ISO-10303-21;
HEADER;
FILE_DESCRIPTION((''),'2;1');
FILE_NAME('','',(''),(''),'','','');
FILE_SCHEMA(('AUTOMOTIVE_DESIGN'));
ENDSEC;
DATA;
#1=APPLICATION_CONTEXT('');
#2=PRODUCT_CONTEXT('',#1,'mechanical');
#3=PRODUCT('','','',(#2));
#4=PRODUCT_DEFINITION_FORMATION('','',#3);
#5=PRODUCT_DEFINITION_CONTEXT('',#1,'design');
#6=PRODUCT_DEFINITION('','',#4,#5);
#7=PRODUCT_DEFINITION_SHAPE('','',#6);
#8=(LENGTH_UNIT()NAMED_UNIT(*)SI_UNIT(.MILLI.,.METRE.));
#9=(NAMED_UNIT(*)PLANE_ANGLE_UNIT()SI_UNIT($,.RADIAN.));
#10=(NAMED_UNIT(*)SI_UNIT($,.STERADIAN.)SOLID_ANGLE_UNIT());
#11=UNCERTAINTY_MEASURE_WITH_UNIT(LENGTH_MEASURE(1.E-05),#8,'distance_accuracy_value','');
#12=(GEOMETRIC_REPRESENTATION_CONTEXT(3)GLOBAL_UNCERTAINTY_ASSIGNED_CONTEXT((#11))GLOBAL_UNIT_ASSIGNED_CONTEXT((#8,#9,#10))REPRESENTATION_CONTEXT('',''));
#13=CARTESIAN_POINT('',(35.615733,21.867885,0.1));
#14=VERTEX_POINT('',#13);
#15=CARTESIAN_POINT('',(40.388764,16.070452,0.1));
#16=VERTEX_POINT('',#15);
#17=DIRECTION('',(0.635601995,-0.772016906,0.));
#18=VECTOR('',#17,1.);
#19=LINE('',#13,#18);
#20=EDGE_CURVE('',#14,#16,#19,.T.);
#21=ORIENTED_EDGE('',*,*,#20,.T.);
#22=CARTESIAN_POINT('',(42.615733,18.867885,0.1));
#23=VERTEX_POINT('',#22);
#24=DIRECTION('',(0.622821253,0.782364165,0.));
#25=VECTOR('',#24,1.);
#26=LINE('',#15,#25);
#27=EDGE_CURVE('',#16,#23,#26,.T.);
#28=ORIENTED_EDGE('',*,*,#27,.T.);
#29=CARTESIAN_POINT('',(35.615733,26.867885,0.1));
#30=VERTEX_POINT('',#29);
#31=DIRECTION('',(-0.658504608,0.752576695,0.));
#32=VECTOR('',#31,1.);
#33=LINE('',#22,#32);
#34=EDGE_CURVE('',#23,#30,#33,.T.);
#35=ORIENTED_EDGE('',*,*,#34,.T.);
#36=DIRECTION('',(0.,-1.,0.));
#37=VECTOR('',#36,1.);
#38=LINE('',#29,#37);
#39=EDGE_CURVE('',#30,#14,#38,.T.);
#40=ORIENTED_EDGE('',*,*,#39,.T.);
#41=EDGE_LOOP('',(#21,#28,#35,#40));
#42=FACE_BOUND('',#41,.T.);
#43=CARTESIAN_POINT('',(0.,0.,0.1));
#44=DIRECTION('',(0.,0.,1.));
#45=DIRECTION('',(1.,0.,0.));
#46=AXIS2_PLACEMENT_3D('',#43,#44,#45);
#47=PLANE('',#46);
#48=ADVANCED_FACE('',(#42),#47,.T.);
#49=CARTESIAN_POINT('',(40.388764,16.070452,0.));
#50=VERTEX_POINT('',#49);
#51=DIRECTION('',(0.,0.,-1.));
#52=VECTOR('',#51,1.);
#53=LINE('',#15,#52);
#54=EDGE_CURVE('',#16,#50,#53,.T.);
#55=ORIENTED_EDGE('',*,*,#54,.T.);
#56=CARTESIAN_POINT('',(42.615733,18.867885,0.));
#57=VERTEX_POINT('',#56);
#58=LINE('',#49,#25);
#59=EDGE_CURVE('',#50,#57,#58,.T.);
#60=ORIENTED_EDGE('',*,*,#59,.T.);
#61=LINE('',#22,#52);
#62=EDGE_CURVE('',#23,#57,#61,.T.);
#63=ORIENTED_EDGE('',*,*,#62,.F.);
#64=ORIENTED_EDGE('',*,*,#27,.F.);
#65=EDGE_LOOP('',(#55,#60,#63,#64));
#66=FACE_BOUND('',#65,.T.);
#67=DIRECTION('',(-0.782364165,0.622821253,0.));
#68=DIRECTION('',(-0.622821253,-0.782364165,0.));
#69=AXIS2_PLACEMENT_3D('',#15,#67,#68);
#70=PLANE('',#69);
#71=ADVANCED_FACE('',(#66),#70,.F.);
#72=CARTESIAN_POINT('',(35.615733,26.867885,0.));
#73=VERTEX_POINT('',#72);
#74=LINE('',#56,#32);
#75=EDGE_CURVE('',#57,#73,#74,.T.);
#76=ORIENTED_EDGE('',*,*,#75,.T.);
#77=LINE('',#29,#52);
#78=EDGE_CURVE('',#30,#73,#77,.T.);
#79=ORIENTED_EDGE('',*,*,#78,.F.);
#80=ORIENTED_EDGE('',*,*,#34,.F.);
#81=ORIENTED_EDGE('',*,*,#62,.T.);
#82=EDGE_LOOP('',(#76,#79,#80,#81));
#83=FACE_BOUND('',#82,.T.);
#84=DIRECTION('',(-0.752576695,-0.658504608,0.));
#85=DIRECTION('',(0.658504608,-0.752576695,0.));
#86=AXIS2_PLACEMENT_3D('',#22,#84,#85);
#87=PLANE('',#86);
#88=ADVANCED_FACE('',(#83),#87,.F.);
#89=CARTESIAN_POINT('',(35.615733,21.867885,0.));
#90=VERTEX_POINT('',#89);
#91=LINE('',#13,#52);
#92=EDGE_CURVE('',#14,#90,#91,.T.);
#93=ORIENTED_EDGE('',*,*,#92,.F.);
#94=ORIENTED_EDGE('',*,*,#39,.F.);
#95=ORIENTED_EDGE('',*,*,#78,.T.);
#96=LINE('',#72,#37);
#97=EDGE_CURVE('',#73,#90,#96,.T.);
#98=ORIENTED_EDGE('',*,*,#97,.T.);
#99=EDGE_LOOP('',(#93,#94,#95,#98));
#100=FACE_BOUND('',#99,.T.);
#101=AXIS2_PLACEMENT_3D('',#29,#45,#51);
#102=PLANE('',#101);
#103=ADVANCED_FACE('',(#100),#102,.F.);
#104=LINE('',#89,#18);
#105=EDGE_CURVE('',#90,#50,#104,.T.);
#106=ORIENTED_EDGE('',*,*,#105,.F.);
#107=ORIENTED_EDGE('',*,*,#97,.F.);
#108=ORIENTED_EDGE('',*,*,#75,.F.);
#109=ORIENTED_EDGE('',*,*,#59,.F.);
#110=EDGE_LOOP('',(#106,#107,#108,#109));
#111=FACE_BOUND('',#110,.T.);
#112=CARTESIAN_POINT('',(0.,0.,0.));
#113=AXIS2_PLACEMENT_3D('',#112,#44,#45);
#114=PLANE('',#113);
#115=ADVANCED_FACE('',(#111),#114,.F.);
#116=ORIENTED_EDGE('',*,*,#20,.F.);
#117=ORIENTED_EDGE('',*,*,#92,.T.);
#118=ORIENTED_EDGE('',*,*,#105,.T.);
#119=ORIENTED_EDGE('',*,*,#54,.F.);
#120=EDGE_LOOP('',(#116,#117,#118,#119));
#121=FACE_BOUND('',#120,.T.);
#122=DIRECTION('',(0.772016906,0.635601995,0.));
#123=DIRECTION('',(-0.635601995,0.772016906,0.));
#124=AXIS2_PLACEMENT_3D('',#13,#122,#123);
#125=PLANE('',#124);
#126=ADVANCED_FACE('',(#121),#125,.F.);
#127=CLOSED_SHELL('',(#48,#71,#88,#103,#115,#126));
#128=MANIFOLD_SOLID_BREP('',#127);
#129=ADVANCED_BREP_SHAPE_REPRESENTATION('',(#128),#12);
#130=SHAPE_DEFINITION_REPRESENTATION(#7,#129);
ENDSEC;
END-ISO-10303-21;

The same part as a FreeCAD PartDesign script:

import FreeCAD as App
import Part
import Sketcher

doc = App.newDocument("Part")
body = doc.addObject("PartDesign::Body", "Body")

sketch1 = body.newObject("Sketcher::SketchObject", "Sketch")
sketch1.AttachmentSupport = (doc.getObject("XY_Plane"), [""])
sketch1.MapMode = "FlatFace"
sketch1.addGeometry([
    Part.LineSegment(App.Vector(42.6, 18.9, 0), App.Vector(35.6, 26.9, 0)),
    Part.LineSegment(App.Vector(35.6, 26.9, 0), App.Vector(35.6, 21.9, 0)),
    Part.LineSegment(App.Vector(35.6, 21.9, 0), App.Vector(40.4, 16.1, 0)),
    Part.LineSegment(App.Vector(40.4, 16.1, 0), App.Vector(42.6, 18.9, 0)),
], False)
sketch1.addConstraint([
    Sketcher.Constraint("Coincident", 0, 2, 1, 1),
    Sketcher.Constraint("Coincident", 1, 2, 2, 1),
    Sketcher.Constraint("Coincident", 2, 2, 3, 1),
    Sketcher.Constraint("Coincident", 3, 2, 0, 1),
    Sketcher.Constraint("Vertical", 1),
    Sketcher.Constraint("DistanceY", 1, 2, 1, 1, 5.0),
    Sketcher.Constraint("DistanceX", 1, 2, 3, 2, 7.0),
    Sketcher.Constraint("DistanceY", 3, 2, 1, 2, 3.0),
    Sketcher.Constraint("DistanceY", -1, 1, 2, 2, 16.070452),
    Sketcher.Constraint("DistanceX", 1, 2, 2, 2, 4.773031),
    Sketcher.Constraint("Distance", 2, 7.509464),
    Sketcher.Constraint("DistanceX", -1, 1, 0, 2, 35.615733),
])
pad1 = body.newObject("PartDesign::Pad", "Pad")
pad1.Profile = sketch1
pad1.Length = 0.1

doc.recompute()
